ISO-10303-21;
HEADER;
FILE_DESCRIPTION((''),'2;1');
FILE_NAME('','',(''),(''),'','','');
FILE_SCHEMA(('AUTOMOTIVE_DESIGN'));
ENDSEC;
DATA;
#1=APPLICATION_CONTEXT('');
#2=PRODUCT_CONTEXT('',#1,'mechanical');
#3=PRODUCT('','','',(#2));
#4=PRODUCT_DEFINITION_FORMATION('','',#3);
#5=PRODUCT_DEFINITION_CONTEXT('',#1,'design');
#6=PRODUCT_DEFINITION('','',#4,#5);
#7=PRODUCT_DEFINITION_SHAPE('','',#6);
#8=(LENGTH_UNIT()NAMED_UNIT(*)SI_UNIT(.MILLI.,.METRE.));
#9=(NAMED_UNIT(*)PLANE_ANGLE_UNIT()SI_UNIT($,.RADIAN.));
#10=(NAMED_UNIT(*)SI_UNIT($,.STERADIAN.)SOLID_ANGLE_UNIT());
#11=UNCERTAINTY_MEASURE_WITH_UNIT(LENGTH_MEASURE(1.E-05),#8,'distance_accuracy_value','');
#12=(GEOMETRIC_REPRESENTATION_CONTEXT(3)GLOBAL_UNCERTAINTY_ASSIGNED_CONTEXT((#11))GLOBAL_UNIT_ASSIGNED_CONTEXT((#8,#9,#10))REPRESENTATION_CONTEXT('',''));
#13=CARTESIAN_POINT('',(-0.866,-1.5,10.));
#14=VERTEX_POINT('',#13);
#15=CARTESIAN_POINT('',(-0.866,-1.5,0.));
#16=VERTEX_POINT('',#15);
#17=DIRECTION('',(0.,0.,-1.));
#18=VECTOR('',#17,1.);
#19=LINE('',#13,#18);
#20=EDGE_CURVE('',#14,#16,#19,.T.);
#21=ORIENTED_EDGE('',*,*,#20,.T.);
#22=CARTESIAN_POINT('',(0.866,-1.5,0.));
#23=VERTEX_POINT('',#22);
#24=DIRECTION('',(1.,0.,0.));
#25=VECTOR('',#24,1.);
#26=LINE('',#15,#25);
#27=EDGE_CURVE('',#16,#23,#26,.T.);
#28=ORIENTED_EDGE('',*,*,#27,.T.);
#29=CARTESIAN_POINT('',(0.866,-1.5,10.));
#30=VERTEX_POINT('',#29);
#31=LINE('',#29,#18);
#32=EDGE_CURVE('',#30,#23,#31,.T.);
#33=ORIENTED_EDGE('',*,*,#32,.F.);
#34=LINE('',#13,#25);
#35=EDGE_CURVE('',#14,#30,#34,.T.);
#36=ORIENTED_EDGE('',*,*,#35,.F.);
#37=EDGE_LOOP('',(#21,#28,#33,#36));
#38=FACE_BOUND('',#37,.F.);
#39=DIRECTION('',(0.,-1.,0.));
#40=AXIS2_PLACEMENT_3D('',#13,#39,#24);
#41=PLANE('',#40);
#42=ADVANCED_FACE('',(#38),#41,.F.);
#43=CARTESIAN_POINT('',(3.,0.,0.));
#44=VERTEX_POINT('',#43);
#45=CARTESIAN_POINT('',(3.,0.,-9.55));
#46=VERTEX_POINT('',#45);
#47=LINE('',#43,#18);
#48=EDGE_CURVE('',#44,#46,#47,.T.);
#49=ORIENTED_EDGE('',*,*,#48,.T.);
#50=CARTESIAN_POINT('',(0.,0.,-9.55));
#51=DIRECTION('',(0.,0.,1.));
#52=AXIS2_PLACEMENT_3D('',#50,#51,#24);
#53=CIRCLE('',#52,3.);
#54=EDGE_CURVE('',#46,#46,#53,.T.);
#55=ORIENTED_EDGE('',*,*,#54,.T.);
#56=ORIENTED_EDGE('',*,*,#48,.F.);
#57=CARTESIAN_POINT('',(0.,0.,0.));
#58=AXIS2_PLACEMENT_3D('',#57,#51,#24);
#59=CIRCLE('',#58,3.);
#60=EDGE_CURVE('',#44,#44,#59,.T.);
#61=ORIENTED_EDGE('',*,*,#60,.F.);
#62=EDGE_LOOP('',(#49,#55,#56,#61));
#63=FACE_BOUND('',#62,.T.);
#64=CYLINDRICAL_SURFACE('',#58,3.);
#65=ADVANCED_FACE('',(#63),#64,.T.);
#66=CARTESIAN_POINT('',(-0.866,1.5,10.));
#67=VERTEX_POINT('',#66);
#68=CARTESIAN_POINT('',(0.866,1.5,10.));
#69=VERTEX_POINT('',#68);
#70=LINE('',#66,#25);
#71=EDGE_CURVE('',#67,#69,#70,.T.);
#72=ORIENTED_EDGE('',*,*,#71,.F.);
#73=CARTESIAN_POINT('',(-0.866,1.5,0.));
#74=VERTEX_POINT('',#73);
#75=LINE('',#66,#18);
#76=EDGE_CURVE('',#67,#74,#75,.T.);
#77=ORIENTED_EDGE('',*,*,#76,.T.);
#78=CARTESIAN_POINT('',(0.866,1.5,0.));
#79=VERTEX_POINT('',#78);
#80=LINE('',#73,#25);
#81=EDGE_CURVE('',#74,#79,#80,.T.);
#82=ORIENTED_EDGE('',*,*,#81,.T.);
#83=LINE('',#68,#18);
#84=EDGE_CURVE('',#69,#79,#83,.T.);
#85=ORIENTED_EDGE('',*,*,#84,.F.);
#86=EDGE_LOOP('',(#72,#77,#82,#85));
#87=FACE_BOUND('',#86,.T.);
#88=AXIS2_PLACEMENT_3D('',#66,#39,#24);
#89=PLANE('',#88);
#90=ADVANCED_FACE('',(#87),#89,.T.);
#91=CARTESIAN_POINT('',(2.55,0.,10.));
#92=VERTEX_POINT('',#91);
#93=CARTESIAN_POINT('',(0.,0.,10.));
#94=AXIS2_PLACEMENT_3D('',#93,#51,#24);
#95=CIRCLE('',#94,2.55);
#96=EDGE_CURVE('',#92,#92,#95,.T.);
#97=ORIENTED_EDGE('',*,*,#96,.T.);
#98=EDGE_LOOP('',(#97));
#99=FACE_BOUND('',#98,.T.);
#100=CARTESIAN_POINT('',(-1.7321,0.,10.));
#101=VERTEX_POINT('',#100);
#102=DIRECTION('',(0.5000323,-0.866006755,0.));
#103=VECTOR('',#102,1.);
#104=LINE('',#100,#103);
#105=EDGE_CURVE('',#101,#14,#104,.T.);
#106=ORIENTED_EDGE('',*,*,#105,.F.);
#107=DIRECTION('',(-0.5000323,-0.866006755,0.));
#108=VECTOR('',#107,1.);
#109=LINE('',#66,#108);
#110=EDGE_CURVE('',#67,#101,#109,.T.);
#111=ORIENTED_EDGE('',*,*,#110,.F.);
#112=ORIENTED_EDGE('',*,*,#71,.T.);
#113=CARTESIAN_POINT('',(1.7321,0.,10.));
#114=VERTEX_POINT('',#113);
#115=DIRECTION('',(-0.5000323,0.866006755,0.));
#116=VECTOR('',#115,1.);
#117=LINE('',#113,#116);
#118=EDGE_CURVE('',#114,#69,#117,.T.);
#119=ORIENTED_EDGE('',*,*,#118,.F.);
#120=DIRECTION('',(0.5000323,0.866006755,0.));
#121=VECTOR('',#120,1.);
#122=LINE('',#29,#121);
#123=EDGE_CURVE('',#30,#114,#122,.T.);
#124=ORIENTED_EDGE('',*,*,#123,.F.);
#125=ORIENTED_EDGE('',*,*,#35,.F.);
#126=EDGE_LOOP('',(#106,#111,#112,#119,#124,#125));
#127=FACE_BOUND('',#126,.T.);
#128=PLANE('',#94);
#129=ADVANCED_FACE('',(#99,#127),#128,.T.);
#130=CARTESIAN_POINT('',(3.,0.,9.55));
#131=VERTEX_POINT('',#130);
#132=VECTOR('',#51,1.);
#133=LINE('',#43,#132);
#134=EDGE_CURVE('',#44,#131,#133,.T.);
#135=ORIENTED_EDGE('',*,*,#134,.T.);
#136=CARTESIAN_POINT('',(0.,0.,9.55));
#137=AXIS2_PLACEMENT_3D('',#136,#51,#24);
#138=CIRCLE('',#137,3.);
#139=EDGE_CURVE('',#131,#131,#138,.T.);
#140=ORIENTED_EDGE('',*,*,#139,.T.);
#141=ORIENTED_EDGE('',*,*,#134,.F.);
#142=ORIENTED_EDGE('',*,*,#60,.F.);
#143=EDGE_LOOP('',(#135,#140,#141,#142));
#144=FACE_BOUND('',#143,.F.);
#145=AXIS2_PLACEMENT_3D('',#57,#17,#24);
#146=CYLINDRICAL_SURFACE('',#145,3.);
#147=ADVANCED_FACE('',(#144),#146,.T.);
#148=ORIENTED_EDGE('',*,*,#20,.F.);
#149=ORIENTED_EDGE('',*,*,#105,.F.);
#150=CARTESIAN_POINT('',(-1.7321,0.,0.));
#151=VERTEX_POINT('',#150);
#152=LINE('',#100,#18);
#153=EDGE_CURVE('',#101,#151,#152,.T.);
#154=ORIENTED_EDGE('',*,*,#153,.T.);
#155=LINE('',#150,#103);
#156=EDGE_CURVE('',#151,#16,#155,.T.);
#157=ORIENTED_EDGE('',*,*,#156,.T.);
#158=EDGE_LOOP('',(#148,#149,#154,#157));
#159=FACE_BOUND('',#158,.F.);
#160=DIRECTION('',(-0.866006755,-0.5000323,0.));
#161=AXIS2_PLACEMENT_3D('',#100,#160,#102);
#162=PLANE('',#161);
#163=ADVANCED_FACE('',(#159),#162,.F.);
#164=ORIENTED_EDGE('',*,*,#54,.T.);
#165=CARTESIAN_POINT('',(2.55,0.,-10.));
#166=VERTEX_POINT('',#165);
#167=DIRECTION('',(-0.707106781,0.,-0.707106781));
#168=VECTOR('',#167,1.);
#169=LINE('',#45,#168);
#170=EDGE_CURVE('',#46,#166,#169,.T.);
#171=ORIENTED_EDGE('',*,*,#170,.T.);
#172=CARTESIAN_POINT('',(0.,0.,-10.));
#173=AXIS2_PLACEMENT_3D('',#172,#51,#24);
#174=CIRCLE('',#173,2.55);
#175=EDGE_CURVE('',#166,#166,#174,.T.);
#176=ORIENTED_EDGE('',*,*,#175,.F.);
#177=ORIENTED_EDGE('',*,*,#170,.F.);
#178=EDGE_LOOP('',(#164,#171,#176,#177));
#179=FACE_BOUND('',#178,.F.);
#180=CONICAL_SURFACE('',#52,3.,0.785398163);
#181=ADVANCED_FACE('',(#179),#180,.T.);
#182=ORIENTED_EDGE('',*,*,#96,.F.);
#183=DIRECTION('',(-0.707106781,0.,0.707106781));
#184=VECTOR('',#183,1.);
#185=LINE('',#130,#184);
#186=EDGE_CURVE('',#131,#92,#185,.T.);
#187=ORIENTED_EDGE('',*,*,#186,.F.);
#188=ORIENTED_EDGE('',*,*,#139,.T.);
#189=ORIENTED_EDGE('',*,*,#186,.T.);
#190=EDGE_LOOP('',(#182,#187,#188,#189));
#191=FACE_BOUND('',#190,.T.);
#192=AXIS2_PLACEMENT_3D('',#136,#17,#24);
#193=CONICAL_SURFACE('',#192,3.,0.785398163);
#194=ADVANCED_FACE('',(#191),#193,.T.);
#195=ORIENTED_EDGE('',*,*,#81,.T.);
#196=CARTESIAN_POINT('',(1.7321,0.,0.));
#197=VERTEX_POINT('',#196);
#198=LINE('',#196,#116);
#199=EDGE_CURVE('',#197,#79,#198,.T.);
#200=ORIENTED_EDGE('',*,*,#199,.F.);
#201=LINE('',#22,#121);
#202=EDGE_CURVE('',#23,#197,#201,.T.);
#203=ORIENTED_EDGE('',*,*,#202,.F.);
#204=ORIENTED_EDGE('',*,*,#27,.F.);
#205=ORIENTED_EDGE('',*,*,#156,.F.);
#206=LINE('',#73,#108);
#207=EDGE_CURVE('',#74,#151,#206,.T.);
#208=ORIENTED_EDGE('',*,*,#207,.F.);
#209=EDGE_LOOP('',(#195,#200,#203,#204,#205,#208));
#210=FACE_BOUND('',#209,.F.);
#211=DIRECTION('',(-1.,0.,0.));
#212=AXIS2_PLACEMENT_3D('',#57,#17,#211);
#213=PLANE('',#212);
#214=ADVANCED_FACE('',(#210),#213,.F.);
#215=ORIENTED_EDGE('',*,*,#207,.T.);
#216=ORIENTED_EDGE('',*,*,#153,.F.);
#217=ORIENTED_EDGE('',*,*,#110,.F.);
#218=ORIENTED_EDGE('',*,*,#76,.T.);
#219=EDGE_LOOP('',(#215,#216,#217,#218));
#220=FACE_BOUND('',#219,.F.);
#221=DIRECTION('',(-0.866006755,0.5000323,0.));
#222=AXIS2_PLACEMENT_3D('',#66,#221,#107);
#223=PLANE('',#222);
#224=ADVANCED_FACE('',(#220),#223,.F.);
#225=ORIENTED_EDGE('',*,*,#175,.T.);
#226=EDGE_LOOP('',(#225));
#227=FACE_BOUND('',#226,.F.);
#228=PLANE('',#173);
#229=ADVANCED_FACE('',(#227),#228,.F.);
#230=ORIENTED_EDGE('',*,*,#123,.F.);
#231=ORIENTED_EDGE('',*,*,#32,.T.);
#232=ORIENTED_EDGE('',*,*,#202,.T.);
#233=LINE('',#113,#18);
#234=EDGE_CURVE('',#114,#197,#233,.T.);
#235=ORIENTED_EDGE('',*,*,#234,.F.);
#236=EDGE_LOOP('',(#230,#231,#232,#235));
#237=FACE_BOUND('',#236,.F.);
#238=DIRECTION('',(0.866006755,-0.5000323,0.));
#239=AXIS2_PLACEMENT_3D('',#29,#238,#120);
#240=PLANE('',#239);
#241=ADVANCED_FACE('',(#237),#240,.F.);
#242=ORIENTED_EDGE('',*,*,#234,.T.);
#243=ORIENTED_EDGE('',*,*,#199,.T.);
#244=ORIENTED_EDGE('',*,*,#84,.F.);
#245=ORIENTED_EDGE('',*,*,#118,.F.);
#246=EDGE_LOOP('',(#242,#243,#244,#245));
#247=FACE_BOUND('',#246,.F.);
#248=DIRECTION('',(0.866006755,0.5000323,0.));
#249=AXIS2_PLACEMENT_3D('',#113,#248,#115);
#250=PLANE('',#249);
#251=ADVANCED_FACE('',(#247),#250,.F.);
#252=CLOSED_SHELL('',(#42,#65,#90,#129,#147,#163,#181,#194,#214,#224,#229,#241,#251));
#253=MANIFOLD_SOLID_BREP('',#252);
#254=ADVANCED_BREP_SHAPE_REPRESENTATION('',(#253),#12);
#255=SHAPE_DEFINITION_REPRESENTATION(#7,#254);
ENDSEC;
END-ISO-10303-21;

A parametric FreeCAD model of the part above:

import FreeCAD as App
import Part
import Sketcher

V = App.Vector
Q = App.Units.Quantity


def edges_at(feature, points):
    """Names of the edges that pass closest to the given points."""
    edges = feature.Shape.Edges
    near = lambda p: min(range(len(edges)), key=lambda i: edges[i].distToShape(Part.Vertex(*p))[0])
    return sorted({f"Edge{near(p) + 1}" for p in points})


def add_polygon(sketch, points):
    """Adds a closed chain of lines whose ends are joined by coincident constraints."""
    first, n = sketch.GeometryCount, len(points)
    for a, b in zip(points, points[1:] + points[:1]):
        sketch.addGeometry(Part.LineSegment(App.Vector(*a, 0), App.Vector(*b, 0)), False)
    for i in range(n):
        sketch.addConstraint(Sketcher.Constraint("Coincident", first + i, 2, first + (i + 1) % n, 1))

doc = App.newDocument("Part")
body = doc.addObject("PartDesign::Body", "Body")

sketch1 = body.newObject("Sketcher::SketchObject", "Sketch")
sketch1.AttachmentSupport = (doc.getObject("XY_Plane"), [""])
sketch1.MapMode = "FlatFace"
sketch1.addGeometry(Part.Circle(V(0, 0, 0), V(0, 0, 1), 3), False)
sketch1.addConstraint(Sketcher.Constraint("Coincident", 0, 3, -1, 1))
sketch1.addConstraint(Sketcher.Constraint("Diameter", 0, Q("6 mm")))
pad1 = body.newObject("PartDesign::Pad", "Pad")
pad1.Profile = sketch1
pad1.Length = 20
pad1.Midplane = True
doc.recompute()

chamfer = body.newObject("PartDesign::Chamfer", "Chamfer")
chamfer.Base = (pad1, edges_at(pad1, [(-3, 0, -10), (-3, 0, 10)]))
chamfer.Size = 0.45

sketch2 = body.newObject("Sketcher::SketchObject", "Sketch001")
sketch2.AttachmentSupport = (doc.getObject("XY_Plane"), [""])
sketch2.MapMode = "FlatFace"
sketch2.AttachmentOffset = App.Placement(V(0, 0, 10), App.Rotation())
add_polygon(sketch2, [(0.866, 1.5), (-0.866, 1.5), (-1.7321, 0), (-0.866, -1.5), (0.866, -1.5), (1.7321, 0)])
sketch2.addConstraint(Sketcher.Constraint("Horizontal", 0))
sketch2.addConstraint(Sketcher.Constraint("Horizontal", 3))
sketch2.addConstraint(Sketcher.Constraint("Symmetric", 0, 2, 3, 2, -1, 1))
sketch2.addConstraint(Sketcher.Constraint("Symmetric", 1, 2, 4, 2, -1, 1))
sketch2.addConstraint(Sketcher.Constraint("PointOnObject", 1, 2, -1))
sketch2.addConstraint(Sketcher.Constraint("Parallel", 2, 5))
sketch2.addConstraint(Sketcher.Constraint("Vertical", 0, 2, 2, 2))
sketch2.addConstraint(Sketcher.Constraint("DistanceY", 2, 2, 0, 2, Q("3 mm")))
sketch2.addConstraint(Sketcher.Constraint("DistanceX", 0, 2, 0, 1, Q("1.732 mm")))
sketch2.addConstraint(Sketcher.Constraint("Distance", 1, Q("1.732 mm")))
pocket1 = body.newObject("PartDesign::Pocket", "Pocket")
pocket1.Profile = sketch2
pocket1.Length = 10

doc.recompute()
